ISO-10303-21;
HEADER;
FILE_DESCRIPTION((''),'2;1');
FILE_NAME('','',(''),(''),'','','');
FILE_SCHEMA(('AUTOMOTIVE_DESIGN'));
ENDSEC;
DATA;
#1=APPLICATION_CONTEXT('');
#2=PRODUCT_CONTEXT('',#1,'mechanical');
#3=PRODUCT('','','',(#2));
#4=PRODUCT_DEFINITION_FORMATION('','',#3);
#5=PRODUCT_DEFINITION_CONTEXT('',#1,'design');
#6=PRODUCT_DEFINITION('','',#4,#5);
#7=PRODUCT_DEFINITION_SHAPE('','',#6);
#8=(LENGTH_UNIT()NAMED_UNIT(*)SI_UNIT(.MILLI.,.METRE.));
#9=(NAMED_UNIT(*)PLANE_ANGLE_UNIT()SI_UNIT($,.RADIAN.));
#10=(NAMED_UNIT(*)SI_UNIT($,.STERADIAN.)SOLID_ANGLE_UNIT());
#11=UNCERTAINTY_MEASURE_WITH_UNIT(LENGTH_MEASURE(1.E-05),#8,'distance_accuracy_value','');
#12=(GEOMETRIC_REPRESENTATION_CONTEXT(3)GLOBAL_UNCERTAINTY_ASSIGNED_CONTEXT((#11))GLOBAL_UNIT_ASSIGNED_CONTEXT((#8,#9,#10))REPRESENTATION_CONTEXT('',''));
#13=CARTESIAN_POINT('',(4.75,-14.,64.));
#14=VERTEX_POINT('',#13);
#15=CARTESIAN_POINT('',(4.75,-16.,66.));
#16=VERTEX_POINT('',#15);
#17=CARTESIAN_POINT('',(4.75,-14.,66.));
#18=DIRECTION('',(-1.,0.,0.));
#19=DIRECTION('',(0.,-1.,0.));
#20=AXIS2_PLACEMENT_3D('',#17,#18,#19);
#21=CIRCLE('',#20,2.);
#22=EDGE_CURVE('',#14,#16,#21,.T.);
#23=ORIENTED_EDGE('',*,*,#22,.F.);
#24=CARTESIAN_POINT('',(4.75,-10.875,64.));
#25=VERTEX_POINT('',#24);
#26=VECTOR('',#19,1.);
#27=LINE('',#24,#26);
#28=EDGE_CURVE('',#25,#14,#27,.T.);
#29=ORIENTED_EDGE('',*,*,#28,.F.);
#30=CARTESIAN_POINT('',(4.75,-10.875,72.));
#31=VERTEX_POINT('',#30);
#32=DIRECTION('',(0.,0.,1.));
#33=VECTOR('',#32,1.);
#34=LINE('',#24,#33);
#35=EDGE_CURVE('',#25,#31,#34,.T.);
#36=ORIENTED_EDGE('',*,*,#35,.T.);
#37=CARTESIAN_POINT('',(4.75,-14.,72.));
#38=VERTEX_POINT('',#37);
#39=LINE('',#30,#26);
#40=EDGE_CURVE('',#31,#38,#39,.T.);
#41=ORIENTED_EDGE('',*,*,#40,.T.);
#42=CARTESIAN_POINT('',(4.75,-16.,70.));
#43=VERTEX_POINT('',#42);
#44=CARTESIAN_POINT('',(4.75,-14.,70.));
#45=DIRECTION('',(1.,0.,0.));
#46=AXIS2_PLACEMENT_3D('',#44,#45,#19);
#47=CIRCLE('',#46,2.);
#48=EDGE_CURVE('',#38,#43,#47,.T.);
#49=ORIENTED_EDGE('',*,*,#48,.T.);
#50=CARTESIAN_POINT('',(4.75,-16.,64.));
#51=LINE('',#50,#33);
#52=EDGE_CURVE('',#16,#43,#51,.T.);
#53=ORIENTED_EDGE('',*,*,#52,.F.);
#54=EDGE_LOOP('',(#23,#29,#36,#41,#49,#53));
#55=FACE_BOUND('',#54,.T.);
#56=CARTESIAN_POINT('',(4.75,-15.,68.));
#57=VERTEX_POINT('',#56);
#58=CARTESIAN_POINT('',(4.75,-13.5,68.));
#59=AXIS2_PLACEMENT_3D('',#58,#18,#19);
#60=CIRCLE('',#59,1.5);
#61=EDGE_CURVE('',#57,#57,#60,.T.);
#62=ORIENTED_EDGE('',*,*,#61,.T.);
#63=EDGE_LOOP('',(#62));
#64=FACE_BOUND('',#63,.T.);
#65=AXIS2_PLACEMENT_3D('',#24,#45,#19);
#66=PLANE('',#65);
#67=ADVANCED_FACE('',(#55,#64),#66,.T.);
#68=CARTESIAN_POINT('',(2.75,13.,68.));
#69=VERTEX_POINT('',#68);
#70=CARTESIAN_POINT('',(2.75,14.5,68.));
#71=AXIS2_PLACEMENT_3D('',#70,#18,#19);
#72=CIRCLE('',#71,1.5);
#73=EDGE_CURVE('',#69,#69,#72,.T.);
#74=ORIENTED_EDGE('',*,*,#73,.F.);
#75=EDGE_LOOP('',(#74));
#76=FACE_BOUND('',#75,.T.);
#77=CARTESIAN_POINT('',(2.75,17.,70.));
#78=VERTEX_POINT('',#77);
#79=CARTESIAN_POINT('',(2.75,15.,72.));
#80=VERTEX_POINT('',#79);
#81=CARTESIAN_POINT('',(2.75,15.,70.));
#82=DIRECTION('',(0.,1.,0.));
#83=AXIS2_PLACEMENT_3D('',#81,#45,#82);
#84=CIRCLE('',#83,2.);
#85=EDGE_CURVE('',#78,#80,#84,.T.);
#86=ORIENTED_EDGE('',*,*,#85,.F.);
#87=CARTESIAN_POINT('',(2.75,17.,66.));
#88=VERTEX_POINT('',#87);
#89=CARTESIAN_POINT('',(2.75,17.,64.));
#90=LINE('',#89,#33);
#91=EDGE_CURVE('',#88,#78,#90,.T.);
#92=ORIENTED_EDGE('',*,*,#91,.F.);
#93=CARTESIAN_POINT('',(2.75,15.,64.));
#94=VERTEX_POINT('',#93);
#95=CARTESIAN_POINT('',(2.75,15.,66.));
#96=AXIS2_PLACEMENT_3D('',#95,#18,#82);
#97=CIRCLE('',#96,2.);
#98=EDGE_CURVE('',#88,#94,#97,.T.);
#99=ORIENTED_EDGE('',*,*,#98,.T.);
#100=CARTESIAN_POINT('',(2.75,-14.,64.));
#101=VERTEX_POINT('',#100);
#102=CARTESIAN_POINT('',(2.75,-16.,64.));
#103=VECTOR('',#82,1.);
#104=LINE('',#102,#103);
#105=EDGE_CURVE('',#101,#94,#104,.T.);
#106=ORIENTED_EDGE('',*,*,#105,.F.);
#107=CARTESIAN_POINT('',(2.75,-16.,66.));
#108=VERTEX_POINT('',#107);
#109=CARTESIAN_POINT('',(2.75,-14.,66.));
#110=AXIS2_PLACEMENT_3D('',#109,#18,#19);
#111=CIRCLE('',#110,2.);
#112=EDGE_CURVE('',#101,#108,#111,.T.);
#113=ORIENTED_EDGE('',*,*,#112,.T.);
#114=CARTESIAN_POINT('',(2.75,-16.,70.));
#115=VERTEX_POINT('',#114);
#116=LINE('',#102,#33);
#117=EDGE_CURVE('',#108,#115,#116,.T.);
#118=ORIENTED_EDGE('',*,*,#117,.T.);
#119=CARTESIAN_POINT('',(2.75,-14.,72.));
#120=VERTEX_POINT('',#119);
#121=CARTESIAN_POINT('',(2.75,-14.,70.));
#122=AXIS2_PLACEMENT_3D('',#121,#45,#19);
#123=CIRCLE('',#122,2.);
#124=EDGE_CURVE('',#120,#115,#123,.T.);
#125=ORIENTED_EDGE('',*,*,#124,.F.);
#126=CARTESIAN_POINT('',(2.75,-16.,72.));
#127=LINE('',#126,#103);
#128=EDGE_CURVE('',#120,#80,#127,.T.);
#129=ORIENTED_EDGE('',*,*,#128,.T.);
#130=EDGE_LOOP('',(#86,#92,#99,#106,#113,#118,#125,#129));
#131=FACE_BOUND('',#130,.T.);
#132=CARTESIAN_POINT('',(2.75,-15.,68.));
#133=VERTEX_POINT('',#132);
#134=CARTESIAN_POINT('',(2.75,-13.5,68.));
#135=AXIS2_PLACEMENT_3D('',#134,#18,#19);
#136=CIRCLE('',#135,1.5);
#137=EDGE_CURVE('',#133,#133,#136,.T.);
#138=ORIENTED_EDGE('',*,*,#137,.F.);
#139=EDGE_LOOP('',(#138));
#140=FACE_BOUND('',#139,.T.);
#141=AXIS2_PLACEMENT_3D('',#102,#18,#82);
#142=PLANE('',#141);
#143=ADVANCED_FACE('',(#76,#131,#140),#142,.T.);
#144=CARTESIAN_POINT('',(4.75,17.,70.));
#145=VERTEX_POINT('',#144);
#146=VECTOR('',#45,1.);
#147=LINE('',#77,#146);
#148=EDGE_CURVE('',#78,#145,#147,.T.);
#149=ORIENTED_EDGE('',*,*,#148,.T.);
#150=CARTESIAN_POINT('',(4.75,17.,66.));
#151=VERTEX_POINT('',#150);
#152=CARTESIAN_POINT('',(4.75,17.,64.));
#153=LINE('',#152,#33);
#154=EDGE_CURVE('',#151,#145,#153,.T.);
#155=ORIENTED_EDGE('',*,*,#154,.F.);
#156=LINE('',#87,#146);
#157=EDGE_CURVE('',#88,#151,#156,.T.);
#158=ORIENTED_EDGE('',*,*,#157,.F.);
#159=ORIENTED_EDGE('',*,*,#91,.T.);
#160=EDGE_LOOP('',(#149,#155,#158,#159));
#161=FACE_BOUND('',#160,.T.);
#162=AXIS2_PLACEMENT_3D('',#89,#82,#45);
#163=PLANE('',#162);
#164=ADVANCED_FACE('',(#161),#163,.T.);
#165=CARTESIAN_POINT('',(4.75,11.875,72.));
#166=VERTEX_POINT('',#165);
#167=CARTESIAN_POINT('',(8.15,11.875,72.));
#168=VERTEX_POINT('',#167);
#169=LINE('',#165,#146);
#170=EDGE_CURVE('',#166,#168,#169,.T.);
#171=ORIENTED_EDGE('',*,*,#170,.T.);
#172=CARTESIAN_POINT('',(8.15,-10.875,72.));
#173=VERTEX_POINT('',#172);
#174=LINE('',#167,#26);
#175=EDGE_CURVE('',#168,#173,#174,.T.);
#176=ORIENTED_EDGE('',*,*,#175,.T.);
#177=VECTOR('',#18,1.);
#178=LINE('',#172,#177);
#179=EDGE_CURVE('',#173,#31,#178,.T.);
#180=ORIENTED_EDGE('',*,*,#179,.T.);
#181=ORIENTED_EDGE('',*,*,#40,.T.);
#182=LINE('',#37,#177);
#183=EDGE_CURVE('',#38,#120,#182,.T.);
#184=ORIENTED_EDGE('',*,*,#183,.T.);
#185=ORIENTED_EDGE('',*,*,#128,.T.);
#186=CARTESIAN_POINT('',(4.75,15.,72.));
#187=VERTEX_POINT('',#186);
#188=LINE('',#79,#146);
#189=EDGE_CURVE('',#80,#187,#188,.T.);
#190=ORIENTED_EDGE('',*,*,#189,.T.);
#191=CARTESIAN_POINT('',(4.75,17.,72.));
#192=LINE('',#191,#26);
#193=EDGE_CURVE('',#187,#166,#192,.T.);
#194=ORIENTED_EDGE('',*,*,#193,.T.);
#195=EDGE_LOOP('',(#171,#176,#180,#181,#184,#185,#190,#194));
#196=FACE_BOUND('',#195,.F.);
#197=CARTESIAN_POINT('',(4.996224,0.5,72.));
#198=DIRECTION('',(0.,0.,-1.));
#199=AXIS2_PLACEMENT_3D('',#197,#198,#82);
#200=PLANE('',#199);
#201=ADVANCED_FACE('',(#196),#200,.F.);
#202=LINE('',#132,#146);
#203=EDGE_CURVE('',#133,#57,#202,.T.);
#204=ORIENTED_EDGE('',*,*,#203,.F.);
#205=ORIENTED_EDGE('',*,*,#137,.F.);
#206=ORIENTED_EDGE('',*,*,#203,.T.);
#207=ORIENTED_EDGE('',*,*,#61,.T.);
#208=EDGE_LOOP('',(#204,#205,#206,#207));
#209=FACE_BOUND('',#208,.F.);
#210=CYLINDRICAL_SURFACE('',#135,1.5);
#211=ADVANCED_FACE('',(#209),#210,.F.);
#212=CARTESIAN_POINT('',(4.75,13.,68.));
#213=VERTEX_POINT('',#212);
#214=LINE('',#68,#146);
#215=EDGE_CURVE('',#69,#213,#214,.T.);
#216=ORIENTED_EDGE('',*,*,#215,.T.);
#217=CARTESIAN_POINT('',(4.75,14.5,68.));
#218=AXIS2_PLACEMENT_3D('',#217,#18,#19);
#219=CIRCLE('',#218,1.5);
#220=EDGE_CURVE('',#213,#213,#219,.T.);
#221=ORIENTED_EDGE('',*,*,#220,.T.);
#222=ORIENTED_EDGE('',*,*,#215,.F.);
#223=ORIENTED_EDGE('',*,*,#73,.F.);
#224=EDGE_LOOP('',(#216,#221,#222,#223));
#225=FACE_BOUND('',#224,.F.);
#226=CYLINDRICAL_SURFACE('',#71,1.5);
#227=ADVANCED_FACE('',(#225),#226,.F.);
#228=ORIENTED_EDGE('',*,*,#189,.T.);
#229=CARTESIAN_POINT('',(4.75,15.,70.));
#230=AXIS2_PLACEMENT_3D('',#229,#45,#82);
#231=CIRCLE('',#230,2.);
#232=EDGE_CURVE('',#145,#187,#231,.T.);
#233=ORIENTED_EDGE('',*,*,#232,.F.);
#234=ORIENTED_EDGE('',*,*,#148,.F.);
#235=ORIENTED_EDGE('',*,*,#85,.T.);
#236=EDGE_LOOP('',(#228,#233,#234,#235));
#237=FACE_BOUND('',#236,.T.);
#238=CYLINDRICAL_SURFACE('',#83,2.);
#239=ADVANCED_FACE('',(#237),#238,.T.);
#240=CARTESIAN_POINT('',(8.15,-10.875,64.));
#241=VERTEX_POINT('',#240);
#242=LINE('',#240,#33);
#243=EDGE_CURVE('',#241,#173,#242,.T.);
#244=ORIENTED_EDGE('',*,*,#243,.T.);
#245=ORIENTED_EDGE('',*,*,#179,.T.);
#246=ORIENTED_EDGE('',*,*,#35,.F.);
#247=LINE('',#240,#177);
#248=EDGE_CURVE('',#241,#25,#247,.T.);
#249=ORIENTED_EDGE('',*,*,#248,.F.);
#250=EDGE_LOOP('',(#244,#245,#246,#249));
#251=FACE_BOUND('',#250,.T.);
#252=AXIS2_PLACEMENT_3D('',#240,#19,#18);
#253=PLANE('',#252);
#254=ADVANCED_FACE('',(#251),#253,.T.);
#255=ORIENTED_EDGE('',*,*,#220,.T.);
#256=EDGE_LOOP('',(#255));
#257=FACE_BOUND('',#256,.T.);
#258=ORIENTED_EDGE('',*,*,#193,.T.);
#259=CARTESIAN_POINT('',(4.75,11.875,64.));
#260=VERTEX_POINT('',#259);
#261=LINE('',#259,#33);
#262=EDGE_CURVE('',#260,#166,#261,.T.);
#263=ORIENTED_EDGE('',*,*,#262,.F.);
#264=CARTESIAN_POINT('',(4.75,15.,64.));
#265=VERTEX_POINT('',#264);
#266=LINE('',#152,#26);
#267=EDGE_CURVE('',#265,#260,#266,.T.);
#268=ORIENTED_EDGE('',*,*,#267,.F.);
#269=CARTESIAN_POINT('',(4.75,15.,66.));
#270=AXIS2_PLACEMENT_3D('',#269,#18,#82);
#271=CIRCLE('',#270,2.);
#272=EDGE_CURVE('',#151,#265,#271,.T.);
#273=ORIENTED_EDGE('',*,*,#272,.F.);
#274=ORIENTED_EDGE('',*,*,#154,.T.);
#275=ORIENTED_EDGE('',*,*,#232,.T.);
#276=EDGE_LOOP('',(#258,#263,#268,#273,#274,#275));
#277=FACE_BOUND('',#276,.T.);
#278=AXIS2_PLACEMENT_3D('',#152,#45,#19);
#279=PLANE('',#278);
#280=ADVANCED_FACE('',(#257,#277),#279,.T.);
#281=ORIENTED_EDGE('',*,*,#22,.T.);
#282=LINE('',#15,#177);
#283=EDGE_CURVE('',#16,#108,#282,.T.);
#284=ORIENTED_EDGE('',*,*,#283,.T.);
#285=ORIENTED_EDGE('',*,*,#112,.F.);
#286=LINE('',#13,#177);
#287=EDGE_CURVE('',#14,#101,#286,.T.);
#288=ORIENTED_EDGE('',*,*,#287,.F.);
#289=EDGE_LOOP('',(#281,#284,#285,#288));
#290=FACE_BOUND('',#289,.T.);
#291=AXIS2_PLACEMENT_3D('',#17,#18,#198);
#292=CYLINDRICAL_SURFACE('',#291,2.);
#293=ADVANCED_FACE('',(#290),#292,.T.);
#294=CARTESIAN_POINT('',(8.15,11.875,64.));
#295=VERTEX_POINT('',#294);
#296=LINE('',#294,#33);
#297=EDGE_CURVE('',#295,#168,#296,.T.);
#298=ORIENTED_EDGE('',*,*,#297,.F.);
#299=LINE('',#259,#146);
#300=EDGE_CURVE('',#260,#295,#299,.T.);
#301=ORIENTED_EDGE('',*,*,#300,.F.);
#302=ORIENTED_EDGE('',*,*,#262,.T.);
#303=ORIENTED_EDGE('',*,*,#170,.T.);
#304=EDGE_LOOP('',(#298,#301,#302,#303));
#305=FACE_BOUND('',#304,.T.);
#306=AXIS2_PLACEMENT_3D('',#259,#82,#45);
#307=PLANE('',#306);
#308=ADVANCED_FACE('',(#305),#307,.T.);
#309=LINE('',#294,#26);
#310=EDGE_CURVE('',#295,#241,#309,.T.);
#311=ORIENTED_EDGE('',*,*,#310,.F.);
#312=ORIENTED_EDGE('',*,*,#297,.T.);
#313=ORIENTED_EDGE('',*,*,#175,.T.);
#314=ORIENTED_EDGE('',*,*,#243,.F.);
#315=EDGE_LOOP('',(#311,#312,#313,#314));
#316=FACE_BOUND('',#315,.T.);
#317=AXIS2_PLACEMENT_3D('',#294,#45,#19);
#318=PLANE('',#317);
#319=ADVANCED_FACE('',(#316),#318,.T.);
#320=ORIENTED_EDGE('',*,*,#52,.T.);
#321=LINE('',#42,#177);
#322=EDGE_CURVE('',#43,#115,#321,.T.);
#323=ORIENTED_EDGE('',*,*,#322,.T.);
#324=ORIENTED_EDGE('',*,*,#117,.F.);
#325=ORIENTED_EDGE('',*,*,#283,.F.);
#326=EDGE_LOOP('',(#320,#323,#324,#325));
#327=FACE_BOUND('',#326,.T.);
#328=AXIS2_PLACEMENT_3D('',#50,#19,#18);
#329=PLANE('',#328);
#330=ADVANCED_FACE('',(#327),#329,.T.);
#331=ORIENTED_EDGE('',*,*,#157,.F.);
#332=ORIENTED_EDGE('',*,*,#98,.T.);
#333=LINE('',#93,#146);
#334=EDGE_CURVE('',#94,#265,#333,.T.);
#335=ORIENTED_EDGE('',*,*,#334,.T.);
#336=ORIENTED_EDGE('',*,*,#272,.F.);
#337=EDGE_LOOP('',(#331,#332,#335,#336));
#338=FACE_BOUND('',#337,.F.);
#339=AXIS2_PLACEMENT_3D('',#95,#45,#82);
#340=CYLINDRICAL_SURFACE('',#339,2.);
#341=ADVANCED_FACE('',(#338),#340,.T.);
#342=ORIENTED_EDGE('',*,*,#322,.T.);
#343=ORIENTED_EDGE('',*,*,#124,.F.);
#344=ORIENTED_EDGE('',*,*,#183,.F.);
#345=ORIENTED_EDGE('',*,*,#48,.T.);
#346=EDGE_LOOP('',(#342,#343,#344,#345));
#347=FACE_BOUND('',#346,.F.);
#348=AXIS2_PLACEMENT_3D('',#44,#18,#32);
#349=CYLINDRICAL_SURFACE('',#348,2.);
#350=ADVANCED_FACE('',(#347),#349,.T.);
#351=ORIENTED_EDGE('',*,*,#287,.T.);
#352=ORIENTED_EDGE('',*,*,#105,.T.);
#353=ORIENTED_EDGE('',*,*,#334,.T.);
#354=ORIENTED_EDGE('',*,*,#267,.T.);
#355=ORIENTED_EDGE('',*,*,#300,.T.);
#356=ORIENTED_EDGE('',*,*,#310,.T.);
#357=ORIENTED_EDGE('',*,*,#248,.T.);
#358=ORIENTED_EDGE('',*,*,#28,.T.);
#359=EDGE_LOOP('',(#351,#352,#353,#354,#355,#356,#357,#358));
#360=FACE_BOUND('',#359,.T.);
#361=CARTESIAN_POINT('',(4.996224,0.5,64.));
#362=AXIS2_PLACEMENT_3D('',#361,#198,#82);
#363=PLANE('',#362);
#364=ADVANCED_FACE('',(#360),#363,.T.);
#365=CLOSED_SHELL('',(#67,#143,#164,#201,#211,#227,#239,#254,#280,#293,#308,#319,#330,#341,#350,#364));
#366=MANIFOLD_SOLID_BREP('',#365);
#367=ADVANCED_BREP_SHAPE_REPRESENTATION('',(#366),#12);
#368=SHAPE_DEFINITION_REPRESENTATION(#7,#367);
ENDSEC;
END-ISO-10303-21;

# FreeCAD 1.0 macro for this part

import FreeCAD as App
import Part
import Sketcher

V = App.Vector


def edges_at(feature, points):
    """Names of the edges that pass closest to the given points."""
    edges = feature.Shape.Edges
    near = lambda p: min(range(len(edges)), key=lambda i: edges[i].distToShape(Part.Vertex(*p))[0])
    return sorted({f"Edge{near(p) + 1}" for p in points})


def add_polygon(sketch, points):
    """Adds a closed chain of lines whose ends are joined by coincident constraints."""
    first, n = sketch.GeometryCount, len(points)
    for a, b in zip(points, points[1:] + points[:1]):
        sketch.addGeometry(Part.LineSegment(App.Vector(*a, 0), App.Vector(*b, 0)), False)
    for i in range(n):
        sketch.addConstraint(Sketcher.Constraint("Coincident", first + i, 2, first + (i + 1) % n, 1))

doc = App.newDocument("Part")
params = doc.addObject("Spreadsheet::Sheet", "Params")
for row, (alias, value) in enumerate([
    ("sketch1_width", "33 mm"),
    ("sketch1_height", "2 mm"),
    ("sketch1_height2", "3.4 mm"),
    ("sketch1_width2", "22.75 mm"),
    ("pad1_length", "8 mm"),
    ("sketch2_diameter", "3 mm"),
    ("pocket1_length", "5 mm"),
    ("fillet_radius", "2 mm"),
], start=1):
    params.set(f"A{row}", alias)
    params.set(f"B{row}", "=" + value)
    params.setAlias(f"B{row}", alias)

body = doc.addObject("PartDesign::Body", "Body")

sketch1 = body.newObject("Sketcher::SketchObject", "Sketch")
sketch1.AttachmentSupport = (doc.getObject("YZ_Plane"), [""])
sketch1.MapMode = "FlatFace"
add_polygon(sketch1, [(-11.9, -5), (-17, -5), (-17, -7), (16, -7), (16, -5), (10.9, -5), (10.9, -1.6), (-11.9, -1.6)])
sketch1.addConstraint(Sketcher.Constraint("Horizontal", 0))
sketch1.addConstraint(Sketcher.Constraint("Vertical", 1))
sketch1.addConstraint(Sketcher.Constraint("Horizontal", 2))
sketch1.addConstraint(Sketcher.Constraint("Vertical", 3))
sketch1.addConstraint(Sketcher.Constraint("Horizontal", 4))
sketch1.addConstraint(Sketcher.Constraint("Vertical", 5))
sketch1.addConstraint(Sketcher.Constraint("Horizontal", 6))
sketch1.addConstraint(Sketcher.Constraint("Vertical", 7))
sketch1.addConstraint(Sketcher.Constraint("Horizontal", 0, 2, 3, 2))
sketch1.addConstraint(Sketcher.Constraint("Equal", 0, 4))
sketch1.addConstraint(Sketcher.Constraint("DistanceX", 2, 1, 2, 2, 33.0))
sketch1.addConstraint(Sketcher.Constraint("DistanceY", 1, 2, 1, 1, 2.0))
sketch1.addConstraint(Sketcher.Constraint("DistanceY", 5, 1, 5, 2, 3.4))
sketch1.addConstraint(Sketcher.Constraint("DistanceX", 0, 2, -1, 1, 17.0))
sketch1.addConstraint(Sketcher.Constraint("DistanceY", 0, 2, -1, 1, 5.0))
sketch1.addConstraint(Sketcher.Constraint("DistanceX", 6, 2, 6, 1, 22.75))
sketch1.setExpression("Constraints[18]", "Params.sketch1_width")
sketch1.setExpression("Constraints[19]", "Params.sketch1_height")
sketch1.setExpression("Constraints[20]", "Params.sketch1_height2")
sketch1.setExpression("Constraints[23]", "Params.sketch1_width2")
pad1 = body.newObject("PartDesign::Pad", "Pad")
pad1.Profile = sketch1
pad1.setExpression("Length", "Params.pad1_length")

sketch2 = body.newObject("Sketcher::SketchObject", "Sketch001")
sketch2.AttachmentSupport = (doc.getObject("XY_Plane"), [""])
sketch2.MapMode = "FlatFace"
sketch2.AttachmentOffset = App.Placement(V(0, 0, -7), App.Rotation())
sketch2.addGeometry(Part.Circle(V(4, -14.5, 0), V(0, 0, 1), 1.5), False)
sketch2.addGeometry(Part.Circle(V(4, 13.5, 0), V(0, 0, 1), 1.5), False)
sketch2.addConstraint(Sketcher.Constraint("Equal", 0, 1))
sketch2.addConstraint(Sketcher.Constraint("Vertical", 0, 3, 1, 3))
sketch2.addConstraint(Sketcher.Constraint("Diameter", 0, 3.0))
sketch2.addConstraint(Sketcher.Constraint("DistanceX", -1, 1, 0, 3, 4.0))
sketch2.addConstraint(Sketcher.Constraint("DistanceY", 0, 3, 1, 3, 28.0))
sketch2.addConstraint(Sketcher.Constraint("DistanceY", 0, 3, -1, 1, 14.5))
sketch2.setExpression("Constraints[2]", "Params.sketch2_diameter")
pocket1 = body.newObject("PartDesign::Pocket", "Pocket")
pocket1.Profile = sketch2
pocket1.setExpression("Length", "Params.pocket1_length")
pocket1.Reversed = True
doc.recompute()

fillet = body.newObject("PartDesign::Fillet", "Fillet")
fillet.Base = (pocket1, edges_at(pocket1, [
    (8, -17, -6),
    (0, -17, -6),
    (8, 16, -6),
    (0, 16, -6),
]))
fillet.setExpression("Radius", "Params.fillet_radius")
body2 = doc.addObject("PartDesign::Body", "Body001")
doc.recompute()

body.Placement = App.Placement(V(0, 0, 0), App.Rotation(V(0, 1, 0), 270))
boolean = body2.newObject("PartDesign::Boolean", "Boolean")
boolean.Type = "Fuse"
boolean.addObjects([body])
body3 = doc.addObject("PartDesign::Body", "Body002")
doc.recompute()

body2.Placement = App.Placement(V(9.75, 0, 64), App.Rotation(V(0, 0, 1), 180))
boolean2 = body3.newObject("PartDesign::Boolean", "Boolean001")
boolean2.Type = "Fuse"
boolean2.addObjects([body2])

doc.recompute()
